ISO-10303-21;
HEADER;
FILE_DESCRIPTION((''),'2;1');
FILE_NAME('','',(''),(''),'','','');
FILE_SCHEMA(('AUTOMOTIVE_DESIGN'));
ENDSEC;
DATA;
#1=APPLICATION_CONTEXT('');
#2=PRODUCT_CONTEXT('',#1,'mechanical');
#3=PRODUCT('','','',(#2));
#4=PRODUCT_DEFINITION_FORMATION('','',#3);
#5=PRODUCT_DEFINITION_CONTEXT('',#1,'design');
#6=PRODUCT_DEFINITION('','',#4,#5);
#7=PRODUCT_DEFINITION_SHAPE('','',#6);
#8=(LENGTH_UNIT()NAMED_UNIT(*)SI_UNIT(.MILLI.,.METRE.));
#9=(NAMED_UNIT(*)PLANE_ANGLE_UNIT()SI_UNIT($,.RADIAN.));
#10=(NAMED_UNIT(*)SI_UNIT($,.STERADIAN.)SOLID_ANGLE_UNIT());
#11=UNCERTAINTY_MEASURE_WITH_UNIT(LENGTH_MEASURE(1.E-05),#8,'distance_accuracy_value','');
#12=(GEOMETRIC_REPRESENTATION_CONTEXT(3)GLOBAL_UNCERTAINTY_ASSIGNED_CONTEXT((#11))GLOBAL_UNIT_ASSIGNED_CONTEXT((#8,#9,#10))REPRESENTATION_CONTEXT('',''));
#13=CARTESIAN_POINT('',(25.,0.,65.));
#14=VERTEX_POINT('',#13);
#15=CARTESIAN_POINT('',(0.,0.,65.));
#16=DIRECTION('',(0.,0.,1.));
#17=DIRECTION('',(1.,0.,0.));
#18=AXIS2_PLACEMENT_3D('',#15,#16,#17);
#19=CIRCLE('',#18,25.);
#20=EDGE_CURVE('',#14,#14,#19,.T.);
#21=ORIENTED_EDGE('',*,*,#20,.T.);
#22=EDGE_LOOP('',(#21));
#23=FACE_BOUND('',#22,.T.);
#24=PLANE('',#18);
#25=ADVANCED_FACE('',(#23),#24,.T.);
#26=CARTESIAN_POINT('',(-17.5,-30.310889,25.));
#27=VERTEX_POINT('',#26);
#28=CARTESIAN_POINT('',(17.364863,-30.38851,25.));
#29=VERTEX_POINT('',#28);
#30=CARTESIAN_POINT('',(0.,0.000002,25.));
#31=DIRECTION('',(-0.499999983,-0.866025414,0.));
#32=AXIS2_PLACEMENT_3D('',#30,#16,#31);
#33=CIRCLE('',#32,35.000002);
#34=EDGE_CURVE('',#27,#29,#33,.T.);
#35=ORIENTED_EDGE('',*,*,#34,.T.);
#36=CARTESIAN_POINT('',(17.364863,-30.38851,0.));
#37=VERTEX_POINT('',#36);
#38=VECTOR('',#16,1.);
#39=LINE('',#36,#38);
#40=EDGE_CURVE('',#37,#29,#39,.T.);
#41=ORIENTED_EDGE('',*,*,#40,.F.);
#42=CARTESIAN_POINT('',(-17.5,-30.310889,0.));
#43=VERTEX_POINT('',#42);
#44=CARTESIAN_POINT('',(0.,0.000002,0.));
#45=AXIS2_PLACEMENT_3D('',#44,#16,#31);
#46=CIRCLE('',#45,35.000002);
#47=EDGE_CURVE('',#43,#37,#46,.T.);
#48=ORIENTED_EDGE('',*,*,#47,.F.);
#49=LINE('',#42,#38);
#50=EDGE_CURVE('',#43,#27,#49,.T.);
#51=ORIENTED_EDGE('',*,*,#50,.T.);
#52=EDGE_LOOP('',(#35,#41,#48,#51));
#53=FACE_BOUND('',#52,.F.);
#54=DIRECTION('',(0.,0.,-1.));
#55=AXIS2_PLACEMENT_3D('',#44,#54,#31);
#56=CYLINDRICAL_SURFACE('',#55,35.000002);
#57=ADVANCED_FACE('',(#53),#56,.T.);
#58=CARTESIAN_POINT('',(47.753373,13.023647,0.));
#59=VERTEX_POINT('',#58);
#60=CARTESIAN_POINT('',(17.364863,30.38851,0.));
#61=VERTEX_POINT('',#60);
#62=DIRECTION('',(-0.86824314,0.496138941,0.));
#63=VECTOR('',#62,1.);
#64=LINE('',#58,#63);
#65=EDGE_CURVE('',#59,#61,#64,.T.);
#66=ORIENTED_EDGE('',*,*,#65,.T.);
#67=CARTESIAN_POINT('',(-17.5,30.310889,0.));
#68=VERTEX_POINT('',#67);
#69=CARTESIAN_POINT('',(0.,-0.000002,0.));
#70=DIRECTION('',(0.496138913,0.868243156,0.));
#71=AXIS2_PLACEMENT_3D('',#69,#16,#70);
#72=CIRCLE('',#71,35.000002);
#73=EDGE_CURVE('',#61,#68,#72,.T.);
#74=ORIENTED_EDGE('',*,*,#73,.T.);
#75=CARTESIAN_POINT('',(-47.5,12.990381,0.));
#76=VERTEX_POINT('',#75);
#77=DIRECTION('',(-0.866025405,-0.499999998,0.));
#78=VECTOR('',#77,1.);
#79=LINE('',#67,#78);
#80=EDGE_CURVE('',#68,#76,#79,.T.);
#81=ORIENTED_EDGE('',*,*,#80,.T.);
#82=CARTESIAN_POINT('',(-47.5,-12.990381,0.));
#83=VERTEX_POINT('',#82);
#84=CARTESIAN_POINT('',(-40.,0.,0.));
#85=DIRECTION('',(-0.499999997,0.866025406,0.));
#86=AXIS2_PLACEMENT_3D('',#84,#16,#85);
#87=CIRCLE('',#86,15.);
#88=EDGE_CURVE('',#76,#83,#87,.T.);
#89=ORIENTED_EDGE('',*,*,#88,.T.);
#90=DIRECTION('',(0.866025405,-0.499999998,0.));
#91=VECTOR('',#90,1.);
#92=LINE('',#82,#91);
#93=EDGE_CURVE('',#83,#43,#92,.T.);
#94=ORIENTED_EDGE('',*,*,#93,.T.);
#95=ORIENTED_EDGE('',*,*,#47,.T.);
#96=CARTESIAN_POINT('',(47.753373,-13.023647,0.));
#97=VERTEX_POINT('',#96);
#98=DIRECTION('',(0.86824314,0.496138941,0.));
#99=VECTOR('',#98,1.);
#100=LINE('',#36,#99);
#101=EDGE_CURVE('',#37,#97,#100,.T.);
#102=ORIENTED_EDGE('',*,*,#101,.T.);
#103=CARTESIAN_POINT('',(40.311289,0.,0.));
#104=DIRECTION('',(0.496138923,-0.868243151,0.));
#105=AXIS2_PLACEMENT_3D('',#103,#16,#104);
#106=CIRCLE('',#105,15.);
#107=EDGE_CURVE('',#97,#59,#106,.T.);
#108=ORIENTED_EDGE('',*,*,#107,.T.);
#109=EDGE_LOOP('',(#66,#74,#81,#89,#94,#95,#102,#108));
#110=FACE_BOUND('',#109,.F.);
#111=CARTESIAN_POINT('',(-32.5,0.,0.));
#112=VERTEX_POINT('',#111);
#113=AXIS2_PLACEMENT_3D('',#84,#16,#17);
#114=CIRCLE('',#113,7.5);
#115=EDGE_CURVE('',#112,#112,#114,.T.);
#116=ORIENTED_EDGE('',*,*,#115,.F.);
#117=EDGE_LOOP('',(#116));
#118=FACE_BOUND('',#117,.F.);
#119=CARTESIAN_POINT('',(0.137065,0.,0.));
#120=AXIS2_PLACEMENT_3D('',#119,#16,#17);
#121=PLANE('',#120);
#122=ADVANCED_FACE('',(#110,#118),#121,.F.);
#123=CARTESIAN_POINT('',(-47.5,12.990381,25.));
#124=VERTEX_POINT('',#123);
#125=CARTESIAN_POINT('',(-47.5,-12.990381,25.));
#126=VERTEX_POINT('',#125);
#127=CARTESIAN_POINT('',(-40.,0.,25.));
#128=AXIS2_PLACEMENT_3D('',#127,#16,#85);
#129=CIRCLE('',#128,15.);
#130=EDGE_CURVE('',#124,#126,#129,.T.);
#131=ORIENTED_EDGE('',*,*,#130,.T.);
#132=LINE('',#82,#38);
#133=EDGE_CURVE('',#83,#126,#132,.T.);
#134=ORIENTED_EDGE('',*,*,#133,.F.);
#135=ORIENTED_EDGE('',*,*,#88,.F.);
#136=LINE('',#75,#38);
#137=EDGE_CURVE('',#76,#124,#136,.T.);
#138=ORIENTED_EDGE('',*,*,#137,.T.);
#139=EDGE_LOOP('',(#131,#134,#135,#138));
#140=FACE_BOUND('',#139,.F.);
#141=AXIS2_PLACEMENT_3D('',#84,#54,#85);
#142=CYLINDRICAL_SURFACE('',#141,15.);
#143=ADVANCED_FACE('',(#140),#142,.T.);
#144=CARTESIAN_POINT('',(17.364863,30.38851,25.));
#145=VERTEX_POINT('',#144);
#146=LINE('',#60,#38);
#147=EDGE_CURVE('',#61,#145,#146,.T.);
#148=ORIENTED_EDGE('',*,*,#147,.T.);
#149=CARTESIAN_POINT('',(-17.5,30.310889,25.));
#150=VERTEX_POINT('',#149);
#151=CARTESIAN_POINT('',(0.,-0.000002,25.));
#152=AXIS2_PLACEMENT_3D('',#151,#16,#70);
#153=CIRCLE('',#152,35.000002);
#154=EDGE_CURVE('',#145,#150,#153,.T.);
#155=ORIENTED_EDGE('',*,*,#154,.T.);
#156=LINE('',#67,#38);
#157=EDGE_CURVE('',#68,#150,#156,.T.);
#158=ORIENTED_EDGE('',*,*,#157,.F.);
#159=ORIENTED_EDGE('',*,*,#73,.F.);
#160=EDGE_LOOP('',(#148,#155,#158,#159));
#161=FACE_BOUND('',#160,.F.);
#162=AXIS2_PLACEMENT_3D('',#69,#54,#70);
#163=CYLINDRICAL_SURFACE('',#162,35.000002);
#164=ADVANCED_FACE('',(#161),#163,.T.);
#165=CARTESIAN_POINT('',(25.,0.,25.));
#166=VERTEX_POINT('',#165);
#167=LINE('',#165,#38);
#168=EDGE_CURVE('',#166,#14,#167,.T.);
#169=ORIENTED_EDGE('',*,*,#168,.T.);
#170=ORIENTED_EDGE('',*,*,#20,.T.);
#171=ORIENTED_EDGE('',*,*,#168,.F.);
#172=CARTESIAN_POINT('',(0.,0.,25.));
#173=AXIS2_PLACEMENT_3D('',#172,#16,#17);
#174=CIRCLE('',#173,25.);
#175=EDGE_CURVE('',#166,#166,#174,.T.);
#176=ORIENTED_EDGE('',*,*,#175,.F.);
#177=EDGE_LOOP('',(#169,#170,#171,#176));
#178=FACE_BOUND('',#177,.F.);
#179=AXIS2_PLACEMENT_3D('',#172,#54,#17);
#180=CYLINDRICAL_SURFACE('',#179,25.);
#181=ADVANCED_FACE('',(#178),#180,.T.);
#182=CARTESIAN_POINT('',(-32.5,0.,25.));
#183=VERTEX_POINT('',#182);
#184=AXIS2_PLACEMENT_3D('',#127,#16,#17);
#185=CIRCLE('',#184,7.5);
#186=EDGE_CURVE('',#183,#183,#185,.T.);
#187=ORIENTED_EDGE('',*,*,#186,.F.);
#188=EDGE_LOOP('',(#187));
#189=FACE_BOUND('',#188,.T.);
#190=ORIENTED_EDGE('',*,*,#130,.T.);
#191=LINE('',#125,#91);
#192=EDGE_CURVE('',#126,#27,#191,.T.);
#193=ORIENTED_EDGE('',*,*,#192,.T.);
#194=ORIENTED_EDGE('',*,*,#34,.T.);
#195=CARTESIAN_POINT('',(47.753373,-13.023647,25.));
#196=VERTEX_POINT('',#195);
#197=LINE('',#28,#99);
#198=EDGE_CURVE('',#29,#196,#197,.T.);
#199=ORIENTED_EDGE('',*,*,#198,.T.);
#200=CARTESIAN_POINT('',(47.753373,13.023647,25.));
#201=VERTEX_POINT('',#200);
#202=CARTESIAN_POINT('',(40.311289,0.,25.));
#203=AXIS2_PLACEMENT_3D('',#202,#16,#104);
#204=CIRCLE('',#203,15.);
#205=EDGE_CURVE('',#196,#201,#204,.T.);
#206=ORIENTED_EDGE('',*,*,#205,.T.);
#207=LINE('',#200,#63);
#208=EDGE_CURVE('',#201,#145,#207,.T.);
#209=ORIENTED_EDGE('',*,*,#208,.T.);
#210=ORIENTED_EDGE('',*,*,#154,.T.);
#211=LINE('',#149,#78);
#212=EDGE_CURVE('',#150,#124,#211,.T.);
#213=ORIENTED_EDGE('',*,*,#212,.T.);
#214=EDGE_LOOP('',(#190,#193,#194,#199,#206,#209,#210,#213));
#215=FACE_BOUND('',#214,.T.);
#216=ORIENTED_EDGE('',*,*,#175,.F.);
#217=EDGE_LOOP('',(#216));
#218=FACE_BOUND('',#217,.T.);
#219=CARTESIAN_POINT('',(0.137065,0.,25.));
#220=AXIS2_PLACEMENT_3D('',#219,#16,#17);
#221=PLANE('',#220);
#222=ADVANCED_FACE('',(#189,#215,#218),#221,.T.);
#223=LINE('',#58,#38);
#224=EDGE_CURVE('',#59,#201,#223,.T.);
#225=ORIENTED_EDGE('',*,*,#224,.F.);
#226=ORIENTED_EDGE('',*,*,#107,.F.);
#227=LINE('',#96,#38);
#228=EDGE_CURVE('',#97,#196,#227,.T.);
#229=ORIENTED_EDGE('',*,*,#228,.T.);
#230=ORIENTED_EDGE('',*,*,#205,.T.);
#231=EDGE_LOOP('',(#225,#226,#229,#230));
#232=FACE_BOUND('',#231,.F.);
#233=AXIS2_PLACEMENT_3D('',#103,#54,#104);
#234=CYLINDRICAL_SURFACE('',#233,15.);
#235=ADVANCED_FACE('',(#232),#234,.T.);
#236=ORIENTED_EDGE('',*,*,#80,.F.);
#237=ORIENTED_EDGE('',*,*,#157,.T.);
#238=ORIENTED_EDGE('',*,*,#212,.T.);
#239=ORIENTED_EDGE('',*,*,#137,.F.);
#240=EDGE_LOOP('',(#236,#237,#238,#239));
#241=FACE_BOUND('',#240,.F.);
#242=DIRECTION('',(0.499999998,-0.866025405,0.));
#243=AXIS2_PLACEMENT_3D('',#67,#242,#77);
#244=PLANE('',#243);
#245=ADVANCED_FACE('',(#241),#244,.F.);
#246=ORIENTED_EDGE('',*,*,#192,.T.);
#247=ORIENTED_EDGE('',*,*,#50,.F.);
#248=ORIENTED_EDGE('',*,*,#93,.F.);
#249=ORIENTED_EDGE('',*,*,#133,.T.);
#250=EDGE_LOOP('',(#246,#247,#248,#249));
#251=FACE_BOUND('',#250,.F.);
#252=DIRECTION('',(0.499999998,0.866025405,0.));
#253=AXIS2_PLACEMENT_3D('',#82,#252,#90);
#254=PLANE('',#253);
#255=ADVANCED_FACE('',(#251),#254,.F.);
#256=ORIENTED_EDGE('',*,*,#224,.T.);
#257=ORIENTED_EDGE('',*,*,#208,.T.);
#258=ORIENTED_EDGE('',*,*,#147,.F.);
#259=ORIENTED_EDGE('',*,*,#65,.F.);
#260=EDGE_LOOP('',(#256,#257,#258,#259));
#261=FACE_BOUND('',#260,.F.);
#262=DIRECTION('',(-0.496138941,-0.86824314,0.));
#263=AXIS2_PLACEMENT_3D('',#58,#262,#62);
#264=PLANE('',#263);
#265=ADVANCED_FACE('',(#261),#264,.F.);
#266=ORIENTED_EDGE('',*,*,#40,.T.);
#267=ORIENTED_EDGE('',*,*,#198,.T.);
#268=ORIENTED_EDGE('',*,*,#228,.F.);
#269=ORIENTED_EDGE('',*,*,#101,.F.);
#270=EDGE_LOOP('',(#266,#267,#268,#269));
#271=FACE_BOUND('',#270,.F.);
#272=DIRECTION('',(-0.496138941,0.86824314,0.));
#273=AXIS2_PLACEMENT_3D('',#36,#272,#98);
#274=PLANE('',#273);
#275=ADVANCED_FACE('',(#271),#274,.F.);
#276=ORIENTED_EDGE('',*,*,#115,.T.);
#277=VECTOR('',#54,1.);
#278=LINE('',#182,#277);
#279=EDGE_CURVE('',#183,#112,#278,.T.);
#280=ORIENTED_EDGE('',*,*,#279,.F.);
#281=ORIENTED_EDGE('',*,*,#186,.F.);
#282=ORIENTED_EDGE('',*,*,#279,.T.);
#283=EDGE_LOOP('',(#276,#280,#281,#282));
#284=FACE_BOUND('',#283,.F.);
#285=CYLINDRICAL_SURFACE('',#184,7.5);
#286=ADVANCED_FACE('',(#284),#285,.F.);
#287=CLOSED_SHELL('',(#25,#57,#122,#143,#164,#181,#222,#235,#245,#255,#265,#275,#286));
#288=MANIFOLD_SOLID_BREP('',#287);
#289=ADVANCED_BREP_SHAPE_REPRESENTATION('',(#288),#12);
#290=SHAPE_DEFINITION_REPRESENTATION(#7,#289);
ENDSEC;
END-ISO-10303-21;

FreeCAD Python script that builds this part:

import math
import FreeCAD as App
import Part
import Sketcher
from FreeCAD import Vector
Q = App.Units.Quantity

doc = App.newDocument("Part")
body = doc.addObject("PartDesign::Body", "Body")

sketch1 = body.newObject("Sketcher::SketchObject", "Sketch")
sketch1.AttachmentSupport = (doc.getObject("XY_Plane"), [""])
sketch1.MapMode = "FlatFace"
sketch1.addGeometry([
    Part.LineSegment(Vector(-17.5, 30.310889, 0), Vector(-47.5, 12.990381, 0)),
    Part.ArcOfCircle(Part.Circle(Vector(-40, 0, 0), Vector(0, 0, 1), 15), math.radians(120), math.radians(240)),
    Part.LineSegment(Vector(-47.5, -12.990381, 0), Vector(-17.5, -30.310889, 0)),
    Part.ArcOfCircle(Part.Circle(Vector(0, 0.000002, 0), Vector(0, 0, 1), 35.000002), math.radians(-119.999999), math.radians(-60.25512)),
    Part.LineSegment(Vector(17.364863, -30.38851, 0), Vector(47.753373, -13.023647, 0)),
    Part.ArcOfCircle(Part.Circle(Vector(40.311289, 0, 0), Vector(0, 0, 1), 15), math.radians(-60.25512), math.radians(60.25512)),
    Part.LineSegment(Vector(47.753373, 13.023647, 0), Vector(17.364863, 30.38851, 0)),
    Part.ArcOfCircle(Part.Circle(Vector(0, -0.000002, 0), Vector(0, 0, 1), 35.000002), math.radians(60.25512), math.radians(119.999999)),
], False)
sketch1.addConstraint([
    Sketcher.Constraint("Tangent", 0, 2, 1, 1),
    Sketcher.Constraint("Tangent", 1, 2, 2, 1),
    Sketcher.Constraint("Tangent", 2, 2, 3, 1),
    Sketcher.Constraint("Tangent", 3, 2, 4, 1),
    Sketcher.Constraint("Tangent", 4, 2, 5, 1),
    Sketcher.Constraint("Tangent", 5, 2, 6, 1),
    Sketcher.Constraint("Tangent", 6, 2, 7, 1),
    Sketcher.Constraint("Tangent", 7, 2, 0, 1),
    Sketcher.Constraint("Coincident", 3, 3, -1, 1),
    Sketcher.Constraint("Coincident", 7, 3, -1, 1),
    Sketcher.Constraint("Equal", 1, 5),
    Sketcher.Constraint("Equal", 3, 7),
    Sketcher.Constraint("PointOnObject", 1, 3, -1),
    Sketcher.Constraint("PointOnObject", 5, 3, -1),
    Sketcher.Constraint("Radius", 1, 15.0),
    Sketcher.Constraint("Radius", 3, 35.000002),
    Sketcher.Constraint("Angle", 0, Q("-150 deg")),
    Sketcher.Constraint("Distance", 4, 35.0),
])
pad1 = body.newObject("PartDesign::Pad", "Pad")
pad1.Profile = sketch1
pad1.Length = 25

sketch2 = body.newObject("Sketcher::SketchObject", "Sketch001")
sketch2.AttachmentSupport = (doc.getObject("XY_Plane"), [""])
sketch2.MapMode = "FlatFace"
sketch2.AttachmentOffset = App.Placement(Vector(0, 0, 25), App.Rotation())
sketch2.addGeometry(Part.Circle(Vector(-40, 0, 0), Vector(0, 0, 1), 7.5), False)
sketch2.addConstraint([
    Sketcher.Constraint("PointOnObject", 0, 3, -1),
    Sketcher.Constraint("Diameter", 0, 15.0),
    Sketcher.Constraint("DistanceX", 0, 3, -1, 1, 40.0),
])
pocket1 = body.newObject("PartDesign::Pocket", "Pocket")
pocket1.Profile = sketch2
pocket1.Length = 25

sketch3 = body.newObject("Sketcher::SketchObject", "Sketch002")
sketch3.AttachmentSupport = (doc.getObject("XY_Plane"), [""])
sketch3.MapMode = "FlatFace"
sketch3.AttachmentOffset = App.Placement(Vector(0, 0, 25), App.Rotation())
sketch3.addGeometry(Part.Circle(Vector(0, 0, 0), Vector(0, 0, 1), 25), False)
sketch3.addConstraint([
    Sketcher.Constraint("Coincident", 0, 3, -1, 1),
    Sketcher.Constraint("Diameter", 0, 50.0),
])
pad2 = body.newObject("PartDesign::Pad", "Pad001")
pad2.Profile = sketch3
pad2.Length = 40

doc.recompute()
